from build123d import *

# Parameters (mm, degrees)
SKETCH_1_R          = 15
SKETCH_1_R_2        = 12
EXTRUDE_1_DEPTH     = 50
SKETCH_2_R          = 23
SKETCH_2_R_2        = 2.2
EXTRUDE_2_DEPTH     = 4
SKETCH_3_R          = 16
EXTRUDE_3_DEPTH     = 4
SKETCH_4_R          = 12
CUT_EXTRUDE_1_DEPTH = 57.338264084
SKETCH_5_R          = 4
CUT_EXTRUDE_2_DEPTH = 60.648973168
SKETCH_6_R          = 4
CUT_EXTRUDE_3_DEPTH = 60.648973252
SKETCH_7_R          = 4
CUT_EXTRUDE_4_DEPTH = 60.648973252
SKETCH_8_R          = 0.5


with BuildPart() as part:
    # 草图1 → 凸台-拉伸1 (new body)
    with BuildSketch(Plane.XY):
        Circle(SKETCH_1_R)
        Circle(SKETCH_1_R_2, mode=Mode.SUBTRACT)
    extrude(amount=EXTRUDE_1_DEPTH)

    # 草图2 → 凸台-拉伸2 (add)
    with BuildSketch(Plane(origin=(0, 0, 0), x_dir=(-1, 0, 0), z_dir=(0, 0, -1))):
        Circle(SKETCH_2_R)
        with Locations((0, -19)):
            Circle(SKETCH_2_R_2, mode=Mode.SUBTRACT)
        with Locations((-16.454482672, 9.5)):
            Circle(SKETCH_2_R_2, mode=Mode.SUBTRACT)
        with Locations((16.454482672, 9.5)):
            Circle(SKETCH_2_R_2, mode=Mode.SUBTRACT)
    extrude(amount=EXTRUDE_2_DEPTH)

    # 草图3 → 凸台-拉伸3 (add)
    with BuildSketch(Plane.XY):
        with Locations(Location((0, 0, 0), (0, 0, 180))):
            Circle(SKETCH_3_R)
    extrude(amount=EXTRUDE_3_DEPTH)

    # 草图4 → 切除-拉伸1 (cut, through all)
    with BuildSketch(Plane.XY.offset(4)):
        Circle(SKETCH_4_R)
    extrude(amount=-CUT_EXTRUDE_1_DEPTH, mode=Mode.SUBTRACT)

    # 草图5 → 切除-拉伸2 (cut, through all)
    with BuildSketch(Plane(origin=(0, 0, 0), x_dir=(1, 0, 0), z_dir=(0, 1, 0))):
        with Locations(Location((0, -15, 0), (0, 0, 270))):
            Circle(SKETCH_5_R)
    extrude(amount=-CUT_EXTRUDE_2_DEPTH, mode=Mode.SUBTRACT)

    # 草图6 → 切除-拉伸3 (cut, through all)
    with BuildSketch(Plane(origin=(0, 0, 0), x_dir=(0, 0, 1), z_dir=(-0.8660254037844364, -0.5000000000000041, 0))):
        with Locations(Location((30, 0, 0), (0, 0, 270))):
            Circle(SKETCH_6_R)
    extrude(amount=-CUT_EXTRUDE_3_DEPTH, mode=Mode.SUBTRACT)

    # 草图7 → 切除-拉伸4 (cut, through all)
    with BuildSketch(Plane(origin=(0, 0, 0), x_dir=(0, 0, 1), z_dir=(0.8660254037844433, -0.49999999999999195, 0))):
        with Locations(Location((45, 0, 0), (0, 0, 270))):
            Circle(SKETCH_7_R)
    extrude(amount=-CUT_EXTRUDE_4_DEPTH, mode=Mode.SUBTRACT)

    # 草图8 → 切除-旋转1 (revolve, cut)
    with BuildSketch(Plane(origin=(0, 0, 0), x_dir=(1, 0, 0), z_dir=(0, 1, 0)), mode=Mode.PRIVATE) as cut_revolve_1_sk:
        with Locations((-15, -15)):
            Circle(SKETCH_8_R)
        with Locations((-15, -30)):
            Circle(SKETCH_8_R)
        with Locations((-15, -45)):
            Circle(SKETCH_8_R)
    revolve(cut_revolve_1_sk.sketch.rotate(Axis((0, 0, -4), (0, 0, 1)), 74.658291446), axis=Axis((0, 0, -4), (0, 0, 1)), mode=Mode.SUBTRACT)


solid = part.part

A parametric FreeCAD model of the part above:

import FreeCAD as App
import Part
import Sketcher
from FreeCAD import Vector
Q = App.Units.Quantity

doc = App.newDocument("Part")
body = doc.addObject("PartDesign::Body", "Body")

sketch1 = body.newObject("Sketcher::SketchObject", "Sketch")
sketch1.AttachmentSupport = (doc.getObject("XY_Plane"), [""])
sketch1.MapMode = "FlatFace"
sketch1.addGeometry([
    Part.Circle(Vector(0, 0, 0), Vector(0, 0, 1), 15),
    Part.Circle(Vector(0, 0, 0), Vector(0, 0, 1), 12),
], False)
sketch1.addConstraint([
    Sketcher.Constraint("Coincident", 0, 3, -1, 1),
    Sketcher.Constraint("Coincident", 1, 3, -1, 1),
    Sketcher.Constraint("Diameter", 0, Q("30 mm")),
    Sketcher.Constraint("Diameter", 1, Q("24 mm")),
])
pad1 = body.newObject("PartDesign::Pad", "Pad")
pad1.Profile = sketch1
pad1.Length = 50

sketch2 = body.newObject("Sketcher::SketchObject", "Sketch001")
sketch2.AttachmentSupport = (doc.getObject("XY_Plane"), [""])
sketch2.MapMode = "FlatFace"
sketch2.addGeometry([
    Part.Circle(Vector(0, 0, 0), Vector(0, 0, 1), 23),
    Part.Circle(Vector(0, -19, 0), Vector(0, 0, 1), 2.2),
    Part.Circle(Vector(16.5, 9.5, 0), Vector(0, 0, 1), 2.2),
    Part.Circle(Vector(-16.5, 9.5, 0), Vector(0, 0, 1), 2.2),
], False)
sketch2.addConstraint([
    Sketcher.Constraint("Coincident", 0, 3, -1, 1),
    Sketcher.Constraint("Equal", 1, 2),
    Sketcher.Constraint("Equal", 2, 3),
    Sketcher.Constraint("Symmetric", 2, 3, 3, 3, -2),
    Sketcher.Constraint("PointOnObject", 1, 3, -2),
    Sketcher.Constraint("Diameter", 0, Q("46 mm")),
    Sketcher.Constraint("Diameter", 1, Q("4.4 mm")),
    Sketcher.Constraint("DistanceY", 1, 3, -1, 1, Q("19 mm")),
    Sketcher.Constraint("DistanceY", -1, 1, 2, 3, Q("9.5 mm")),
    Sketcher.Constraint("DistanceX", -1, 1, 2, 3, Q("16.454483 mm")),
])
pad2 = body.newObject("PartDesign::Pad", "Pad001")
pad2.Profile = sketch2
pad2.Length = 4
pad2.Reversed = True

sketch3 = body.newObject("Sketcher::SketchObject", "Sketch002")
sketch3.AttachmentSupport = (doc.getObject("XY_Plane"), [""])
sketch3.MapMode = "FlatFace"
sketch3.addGeometry(Part.Circle(Vector(0, 0, 0), Vector(0, 0, 1), 16), False)
sketch3.addConstraint([
    Sketcher.Constraint("Coincident", 0, 3, -1, 1),
    Sketcher.Constraint("Diameter", 0, Q("32 mm")),
])
pad3 = body.newObject("PartDesign::Pad", "Pad002")
pad3.Profile = sketch3
pad3.Length = 4

sketch4 = body.newObject("Sketcher::SketchObject", "Sketch003")
sketch4.AttachmentSupport = (doc.getObject("XY_Plane"), [""])
sketch4.MapMode = "FlatFace"
sketch4.AttachmentOffset = App.Placement(Vector(0, 0, 4), App.Rotation())
sketch4.addGeometry(Part.Circle(Vector(0, 0, 0), Vector(0, 0, 1), 12), False)
sketch4.addConstraint([
    Sketcher.Constraint("Coincident", 0, 3, -1, 1),
    Sketcher.Constraint("Diameter", 0, Q("24 mm")),
])
pocket1 = body.newObject("PartDesign::Pocket", "Pocket")
pocket1.Profile = sketch4
pocket1.Type = "ThroughAll"

sketch5 = body.newObject("Sketcher::SketchObject", "Sketch004")
sketch5.AttachmentSupport = (doc.getObject("XZ_Plane"), [""])
sketch5.MapMode = "FlatFace"
sketch5.addGeometry(Part.Circle(Vector(0, 15, 0), Vector(0, 0, 1), 4), False)
sketch5.addConstraint([
    Sketcher.Constraint("PointOnObject", 0, 3, -2),
    Sketcher.Constraint("Diameter", 0, Q("8 mm")),
    Sketcher.Constraint("DistanceY", -1, 1, 0, 3, Q("15 mm")),
])
pocket2 = body.newObject("PartDesign::Pocket", "Pocket001")
pocket2.Profile = sketch5
pocket2.Type = "ThroughAll"
pocket2.Reversed = True

sketch6 = body.newObject("Sketcher::SketchObject", "Sketch005")
sketch6.Placement = App.Placement(Vector(0, 0, 0), App.Rotation(Vector(0, 0, 1), Vector(-0.5, 0.866025404, 0), Vector(-0.866025404, -0.5, 0), "ZXY"))
sketch6.addGeometry(Part.Circle(Vector(30, 0, 0), Vector(0, 0, 1), 4), False)
sketch6.addConstraint([
    Sketcher.Constraint("PointOnObject", 0, 3, -1),
    Sketcher.Constraint("Diameter", 0, Q("8 mm")),
    Sketcher.Constraint("DistanceX", -1, 1, 0, 3, Q("30 mm")),
])
pocket3 = body.newObject("PartDesign::Pocket", "Pocket002")
pocket3.Profile = sketch6
pocket3.Type = "ThroughAll"

sketch7 = body.newObject("Sketcher::SketchObject", "Sketch006")
sketch7.Placement = App.Placement(Vector(0, 0, 0), App.Rotation(Vector(0, 0, 1), Vector(-0.5, -0.866025404, 0), Vector(0.866025404, -0.5, 0), "ZXY"))
sketch7.addGeometry(Part.Circle(Vector(45, 0, 0), Vector(0, 0, 1), 4), False)
sketch7.addConstraint([
    Sketcher.Constraint("PointOnObject", 0, 3, -1),
    Sketcher.Constraint("Diameter", 0, Q("8 mm")),
    Sketcher.Constraint("DistanceX", -1, 1, 0, 3, Q("45 mm")),
])
pocket4 = body.newObject("PartDesign::Pocket", "Pocket003")
pocket4.Profile = sketch7
pocket4.Type = "ThroughAll"

sketch8 = body.newObject("Sketcher::SketchObject", "Sketch007")
sketch8.AttachmentSupport = (doc.getObject("XZ_Plane"), [""])
sketch8.MapMode = "FlatFace"
sketch8.addGeometry([
    Part.Circle(Vector(-15, 15, 0), Vector(0, 0, 1), 0.5),
    Part.Circle(Vector(-15, 30, 0), Vector(0, 0, 1), 0.5),
    Part.Circle(Vector(-15, 45, 0), Vector(0, 0, 1), 0.5),
], False)
sketch8.addConstraint([
    Sketcher.Constraint("Equal", 0, 1),
    Sketcher.Constraint("Equal", 1, 2),
    Sketcher.Constraint("Vertical", 0, 3, 1, 3),
    Sketcher.Constraint("Vertical", 1, 3, 2, 3),
    Sketcher.Constraint("Diameter", 0, Q("1 mm")),
    Sketcher.Constraint("DistanceX", 0, 3, -1, 1, Q("15 mm")),
    Sketcher.Constraint("DistanceY", -1, 1, 0, 3, Q("15 mm")),
    Sketcher.Constraint("DistanceY", -1, 1, 1, 3, Q("30 mm")),
    Sketcher.Constraint("DistanceY", -1, 1, 2, 3, Q("45 mm")),
])
groove = body.newObject("PartDesign::Groove", "Groove")
groove.Profile = sketch8
groove.ReferenceAxis = (sketch8, ["V_Axis"])
groove.Angle = 360

doc.recompute()
